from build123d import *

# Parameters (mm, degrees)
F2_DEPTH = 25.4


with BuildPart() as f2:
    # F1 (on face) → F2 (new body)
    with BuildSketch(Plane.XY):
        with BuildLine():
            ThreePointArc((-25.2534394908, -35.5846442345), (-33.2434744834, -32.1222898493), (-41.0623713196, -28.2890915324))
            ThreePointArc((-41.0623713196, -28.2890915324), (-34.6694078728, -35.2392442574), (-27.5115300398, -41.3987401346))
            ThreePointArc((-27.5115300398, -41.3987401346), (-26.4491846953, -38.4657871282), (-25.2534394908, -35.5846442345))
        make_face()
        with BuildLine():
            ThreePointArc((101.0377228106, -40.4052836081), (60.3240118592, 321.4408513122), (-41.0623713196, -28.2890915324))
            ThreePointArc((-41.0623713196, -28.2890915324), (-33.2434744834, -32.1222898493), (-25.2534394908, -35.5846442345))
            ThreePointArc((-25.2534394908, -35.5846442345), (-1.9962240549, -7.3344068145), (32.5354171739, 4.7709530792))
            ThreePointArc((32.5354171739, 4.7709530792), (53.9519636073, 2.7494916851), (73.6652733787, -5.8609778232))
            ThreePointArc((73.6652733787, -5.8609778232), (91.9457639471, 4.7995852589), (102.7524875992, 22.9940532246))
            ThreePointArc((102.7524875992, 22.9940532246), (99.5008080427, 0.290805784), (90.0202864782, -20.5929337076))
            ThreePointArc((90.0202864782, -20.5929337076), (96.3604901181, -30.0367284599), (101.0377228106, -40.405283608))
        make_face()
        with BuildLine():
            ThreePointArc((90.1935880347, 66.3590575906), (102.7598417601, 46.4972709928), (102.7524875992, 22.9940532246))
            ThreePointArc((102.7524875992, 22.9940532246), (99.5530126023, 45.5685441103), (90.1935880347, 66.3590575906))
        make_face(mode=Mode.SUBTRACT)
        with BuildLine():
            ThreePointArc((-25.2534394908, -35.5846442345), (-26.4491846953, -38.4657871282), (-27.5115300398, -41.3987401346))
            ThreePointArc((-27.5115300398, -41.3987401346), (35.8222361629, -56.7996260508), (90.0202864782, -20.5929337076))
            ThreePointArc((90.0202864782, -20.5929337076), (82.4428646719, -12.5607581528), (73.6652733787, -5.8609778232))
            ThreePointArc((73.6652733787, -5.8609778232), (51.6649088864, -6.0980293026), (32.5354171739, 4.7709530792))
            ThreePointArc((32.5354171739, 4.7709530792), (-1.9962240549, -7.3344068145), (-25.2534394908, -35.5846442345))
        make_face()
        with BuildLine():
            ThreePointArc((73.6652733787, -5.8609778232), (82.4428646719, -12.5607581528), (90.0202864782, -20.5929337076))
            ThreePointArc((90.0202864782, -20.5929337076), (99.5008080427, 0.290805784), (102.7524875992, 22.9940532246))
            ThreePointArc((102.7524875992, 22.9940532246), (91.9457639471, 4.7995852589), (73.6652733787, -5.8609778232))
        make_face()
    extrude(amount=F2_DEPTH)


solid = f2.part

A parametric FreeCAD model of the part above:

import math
import FreeCAD as App
import Part
import Sketcher

V = App.Vector
Q = App.Units.Quantity

doc = App.newDocument("Part")
body = doc.addObject("PartDesign::Body", "Body")

# Sketch on XY plane
sketch1 = body.newObject("Sketcher::SketchObject", "Sketch")
sketch1.AttachmentSupport = (doc.getObject("XY_Plane"), [""])
sketch1.MapMode = "FlatFace"
sketch1.addGeometry(Part.ArcOfCircle(Part.Circle(V(22, 23, 0), V(0, 0, 1), 81), math.radians(-127), math.radians(-33)), False)
sketch1.addGeometry(Part.ArcOfCircle(Part.Circle(V(37, -63, 0), V(0, 0, 1), 68), math.radians(19.48), math.radians(38.67)), False)
sketch1.addGeometry(Part.ArcOfCircle(Part.Circle(V(45, 136, 0), V(0, 0, 1), 186), math.radians(-72), math.radians(243)), False)
sketch1.addGeometry(Part.ArcOfCircle(Part.Circle(V(22, 23, 0), V(0, 0, 1), 81), math.radians(-140.73), math.radians(-127.37)), False)
sketch1.addGeometry(Part.ArcOfCircle(Part.Circle(V(37, -63, 0), V(0, 0, 1), 68), math.radians(57), math.radians(94)), False)
sketch1.addGeometry(Part.ArcOfCircle(Part.Circle(V(62, 35, 0), V(0, 0, 1), 42), math.radians(-135), math.radians(-74)), False)
sketch1.addGeometry(Part.ArcOfCircle(Part.Circle(V(62, 35, 0), V(0, 0, 1), 42), math.radians(-16), math.radians(48)), False)
sketch1.addGeometry(Part.ArcOfCircle(Part.Circle(V(22, 23, 0), V(0, 0, 1), 81), math.radians(0), math.radians(32)), False)
sketch1.addConstraint(Sketcher.Constraint("Coincident", 0, 2, 1, 2))
sketch1.addConstraint(Sketcher.Constraint("Coincident", 1, 1, 2, 1))
sketch1.addConstraint(Sketcher.Constraint("Coincident", 2, 2, 3, 1))
sketch1.addConstraint(Sketcher.Constraint("Tangent", 3, 2, 0, 1))
sketch1.addConstraint(Sketcher.Constraint("Coincident", 4, 1, 5, 2))
sketch1.addConstraint(Sketcher.Constraint("Coincident", 5, 1, 4, 2))
sketch1.addConstraint(Sketcher.Constraint("Coincident", 6, 1, 7, 1))
sketch1.addConstraint(Sketcher.Constraint("Coincident", 7, 2, 6, 2))
sketch1.addConstraint(Sketcher.Constraint("Coincident", 4, 3, 1, 3))
sketch1.addConstraint(Sketcher.Constraint("Coincident", 6, 3, 5, 3))
sketch1.addConstraint(Sketcher.Constraint("Coincident", 7, 3, 0, 3))
sketch1.addConstraint(Sketcher.Constraint("Equal", 0, 3))
sketch1.addConstraint(Sketcher.Constraint("Equal", 1, 4))
sketch1.addConstraint(Sketcher.Constraint("Equal", 5, 6))
sketch1.addConstraint(Sketcher.Constraint("Equal", 3, 7))
sketch1.addConstraint(Sketcher.Constraint("Radius", 0, Q("81.060043 mm")))
sketch1.addConstraint(Sketcher.Constraint("Radius", 1, Q("67.996284 mm")))
sketch1.addConstraint(Sketcher.Constraint("Radius", 2, Q("185.659513 mm")))
sketch1.addConstraint(Sketcher.Constraint("Radius", 5, Q("42.199324 mm")))
sketch1.addConstraint(Sketcher.Constraint("DistanceX", 0, 3, 2, 3, Q("22.858501 mm")))
sketch1.addConstraint(Sketcher.Constraint("DistanceX", 0, 2, 6, 1, Q("12.732201 mm")))
sketch1.addConstraint(Sketcher.Constraint("DistanceX", 7, 2, 6, 1, Q("12.5589 mm")))
sketch1.addConstraint(Sketcher.Constraint("DistanceX", -1, 1, 0, 3, Q("21.692449 mm")))
sketch1.addConstraint(Sketcher.Constraint("DistanceY", 1, 3, -1, 1, Q("63.082879 mm")))
sketch1.addConstraint(Sketcher.Constraint("DistanceX", 2, 2, -1, 1, Q("41.062371 mm")))
sketch1.addConstraint(Sketcher.Constraint("DistanceY", 2, 2, -1, 1, Q("28.289092 mm")))
sketch1.addConstraint(Sketcher.Constraint("DistanceX", 3, 2, -1, 1, Q("27.51153 mm")))
sketch1.addConstraint(Sketcher.Constraint("DistanceX", 1, 3, 5, 3, Q("25.29163 mm")))
pad1 = body.newObject("PartDesign::Pad", "Pad")
pad1.Profile = sketch1
pad1.Length = Q("1 in")

doc.recompute()
